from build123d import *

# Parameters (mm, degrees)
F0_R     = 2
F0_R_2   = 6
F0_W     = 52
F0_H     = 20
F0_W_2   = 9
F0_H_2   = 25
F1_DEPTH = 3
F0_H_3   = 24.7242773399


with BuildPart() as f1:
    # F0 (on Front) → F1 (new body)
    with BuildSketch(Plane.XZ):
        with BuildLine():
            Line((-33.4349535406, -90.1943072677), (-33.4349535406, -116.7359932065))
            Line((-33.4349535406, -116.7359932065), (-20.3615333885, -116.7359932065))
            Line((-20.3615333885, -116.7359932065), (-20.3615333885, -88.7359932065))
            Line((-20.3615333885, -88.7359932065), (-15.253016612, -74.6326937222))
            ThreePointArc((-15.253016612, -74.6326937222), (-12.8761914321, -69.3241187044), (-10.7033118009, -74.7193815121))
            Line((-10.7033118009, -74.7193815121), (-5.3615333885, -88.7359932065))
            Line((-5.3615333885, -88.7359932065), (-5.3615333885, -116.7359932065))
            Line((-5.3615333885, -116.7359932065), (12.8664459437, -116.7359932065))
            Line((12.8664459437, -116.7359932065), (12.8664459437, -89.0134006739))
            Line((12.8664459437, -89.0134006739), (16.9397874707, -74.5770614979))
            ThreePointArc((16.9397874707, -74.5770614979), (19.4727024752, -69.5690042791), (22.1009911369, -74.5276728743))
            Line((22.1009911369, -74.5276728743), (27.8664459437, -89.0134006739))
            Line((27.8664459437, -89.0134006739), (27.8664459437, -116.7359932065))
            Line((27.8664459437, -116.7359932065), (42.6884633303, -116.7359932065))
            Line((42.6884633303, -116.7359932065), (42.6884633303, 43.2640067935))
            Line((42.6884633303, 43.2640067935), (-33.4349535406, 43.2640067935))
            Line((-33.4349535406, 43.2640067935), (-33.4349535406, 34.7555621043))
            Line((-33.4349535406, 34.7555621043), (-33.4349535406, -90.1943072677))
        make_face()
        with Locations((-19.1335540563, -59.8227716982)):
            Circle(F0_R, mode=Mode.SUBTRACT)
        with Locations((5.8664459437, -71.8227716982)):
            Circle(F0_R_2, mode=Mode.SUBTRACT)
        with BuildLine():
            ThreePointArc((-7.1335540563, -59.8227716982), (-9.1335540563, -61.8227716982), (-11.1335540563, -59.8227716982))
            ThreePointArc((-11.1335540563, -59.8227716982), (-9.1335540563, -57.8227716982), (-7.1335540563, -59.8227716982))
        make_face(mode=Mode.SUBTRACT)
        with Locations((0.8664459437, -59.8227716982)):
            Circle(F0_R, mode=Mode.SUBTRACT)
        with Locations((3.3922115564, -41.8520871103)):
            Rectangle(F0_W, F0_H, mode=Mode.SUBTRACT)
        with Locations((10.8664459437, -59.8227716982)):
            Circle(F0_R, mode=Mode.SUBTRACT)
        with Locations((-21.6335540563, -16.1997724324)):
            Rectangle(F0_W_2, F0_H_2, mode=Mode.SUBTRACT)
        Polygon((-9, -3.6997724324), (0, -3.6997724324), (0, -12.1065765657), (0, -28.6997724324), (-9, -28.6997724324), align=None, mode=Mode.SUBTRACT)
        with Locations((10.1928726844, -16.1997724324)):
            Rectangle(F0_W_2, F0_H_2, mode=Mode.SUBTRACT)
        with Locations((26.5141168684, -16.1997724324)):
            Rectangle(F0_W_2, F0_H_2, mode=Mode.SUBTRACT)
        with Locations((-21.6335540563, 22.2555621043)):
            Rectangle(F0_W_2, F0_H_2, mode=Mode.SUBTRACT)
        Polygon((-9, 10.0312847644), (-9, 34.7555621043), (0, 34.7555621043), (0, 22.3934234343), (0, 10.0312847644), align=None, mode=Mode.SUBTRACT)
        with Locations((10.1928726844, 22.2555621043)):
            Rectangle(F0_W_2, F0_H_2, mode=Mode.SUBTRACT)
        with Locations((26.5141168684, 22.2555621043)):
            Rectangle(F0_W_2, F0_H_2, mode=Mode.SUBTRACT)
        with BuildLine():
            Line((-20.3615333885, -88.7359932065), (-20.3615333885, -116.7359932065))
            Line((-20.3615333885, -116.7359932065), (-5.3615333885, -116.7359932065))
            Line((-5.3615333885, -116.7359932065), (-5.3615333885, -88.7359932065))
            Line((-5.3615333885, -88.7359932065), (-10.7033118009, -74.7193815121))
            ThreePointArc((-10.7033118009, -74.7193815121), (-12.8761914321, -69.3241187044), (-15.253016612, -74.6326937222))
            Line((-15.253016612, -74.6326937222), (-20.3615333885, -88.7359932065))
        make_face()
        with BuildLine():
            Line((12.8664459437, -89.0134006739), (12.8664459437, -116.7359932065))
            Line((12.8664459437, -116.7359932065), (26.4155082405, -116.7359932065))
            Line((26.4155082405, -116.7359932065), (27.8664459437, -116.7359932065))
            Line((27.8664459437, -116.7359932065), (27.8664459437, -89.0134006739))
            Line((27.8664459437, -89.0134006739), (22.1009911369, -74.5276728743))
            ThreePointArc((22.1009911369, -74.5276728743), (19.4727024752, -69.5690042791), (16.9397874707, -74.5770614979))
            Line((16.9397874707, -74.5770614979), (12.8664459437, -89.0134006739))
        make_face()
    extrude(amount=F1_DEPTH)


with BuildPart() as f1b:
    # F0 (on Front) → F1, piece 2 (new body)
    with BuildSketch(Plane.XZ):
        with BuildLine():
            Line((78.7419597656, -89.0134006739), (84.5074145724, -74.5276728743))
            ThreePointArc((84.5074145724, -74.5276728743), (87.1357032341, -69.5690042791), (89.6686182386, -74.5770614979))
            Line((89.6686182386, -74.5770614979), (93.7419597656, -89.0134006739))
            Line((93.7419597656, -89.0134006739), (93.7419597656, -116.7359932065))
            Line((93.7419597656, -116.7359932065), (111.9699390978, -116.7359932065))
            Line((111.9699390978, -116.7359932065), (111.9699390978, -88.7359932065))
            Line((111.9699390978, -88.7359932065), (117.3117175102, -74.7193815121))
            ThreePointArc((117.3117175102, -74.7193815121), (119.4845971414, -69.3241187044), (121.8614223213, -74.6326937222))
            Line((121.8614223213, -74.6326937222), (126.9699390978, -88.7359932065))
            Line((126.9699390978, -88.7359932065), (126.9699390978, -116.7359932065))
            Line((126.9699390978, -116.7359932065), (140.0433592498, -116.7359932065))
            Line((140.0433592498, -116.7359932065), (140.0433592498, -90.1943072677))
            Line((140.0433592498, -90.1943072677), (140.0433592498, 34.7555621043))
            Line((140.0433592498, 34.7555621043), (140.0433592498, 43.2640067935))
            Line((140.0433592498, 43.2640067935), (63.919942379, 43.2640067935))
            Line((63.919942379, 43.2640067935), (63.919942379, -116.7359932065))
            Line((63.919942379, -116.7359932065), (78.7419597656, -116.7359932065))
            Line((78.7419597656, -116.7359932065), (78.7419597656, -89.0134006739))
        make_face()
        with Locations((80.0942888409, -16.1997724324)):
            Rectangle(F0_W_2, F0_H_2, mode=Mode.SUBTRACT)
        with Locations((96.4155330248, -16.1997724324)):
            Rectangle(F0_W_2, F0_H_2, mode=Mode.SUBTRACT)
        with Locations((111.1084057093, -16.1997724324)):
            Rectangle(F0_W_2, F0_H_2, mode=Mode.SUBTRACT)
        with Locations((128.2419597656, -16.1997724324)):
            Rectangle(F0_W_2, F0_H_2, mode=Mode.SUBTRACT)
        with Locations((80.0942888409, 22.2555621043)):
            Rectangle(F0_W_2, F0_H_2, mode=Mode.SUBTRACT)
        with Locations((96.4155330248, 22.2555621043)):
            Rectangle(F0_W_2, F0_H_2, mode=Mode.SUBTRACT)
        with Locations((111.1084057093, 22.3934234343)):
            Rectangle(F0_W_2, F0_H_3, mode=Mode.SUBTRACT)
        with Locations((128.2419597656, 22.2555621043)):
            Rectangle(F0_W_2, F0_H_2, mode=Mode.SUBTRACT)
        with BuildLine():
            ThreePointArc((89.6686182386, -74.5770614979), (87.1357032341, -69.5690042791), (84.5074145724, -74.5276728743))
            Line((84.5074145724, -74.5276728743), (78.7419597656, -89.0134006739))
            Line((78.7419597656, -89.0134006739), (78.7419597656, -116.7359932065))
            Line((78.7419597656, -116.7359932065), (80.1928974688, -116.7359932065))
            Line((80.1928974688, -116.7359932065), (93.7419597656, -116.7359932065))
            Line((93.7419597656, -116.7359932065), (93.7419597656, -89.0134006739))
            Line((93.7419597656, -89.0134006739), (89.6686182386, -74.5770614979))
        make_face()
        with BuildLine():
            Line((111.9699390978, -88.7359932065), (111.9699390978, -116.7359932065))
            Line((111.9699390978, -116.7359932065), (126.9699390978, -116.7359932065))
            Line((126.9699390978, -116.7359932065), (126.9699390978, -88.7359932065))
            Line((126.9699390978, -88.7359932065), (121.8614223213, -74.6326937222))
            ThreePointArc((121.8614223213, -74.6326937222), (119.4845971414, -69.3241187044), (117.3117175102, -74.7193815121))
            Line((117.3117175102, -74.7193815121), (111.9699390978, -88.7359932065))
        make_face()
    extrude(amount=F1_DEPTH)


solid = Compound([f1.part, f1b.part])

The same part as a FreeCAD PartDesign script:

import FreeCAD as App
import Part
import Sketcher


def add_polygon(sketch, points):
    """Adds a closed chain of lines whose ends are joined by coincident constraints."""
    first, n = sketch.GeometryCount, len(points)
    for a, b in zip(points, points[1:] + points[:1]):
        sketch.addGeometry(Part.LineSegment(App.Vector(*a, 0), App.Vector(*b, 0)), False)
    for i in range(n):
        sketch.addConstraint(Sketcher.Constraint("Coincident", first + i, 2, first + (i + 1) % n, 1))

doc = App.newDocument("Part")
body = doc.addObject("PartDesign::Body", "Body")

sketch1 = doc.addObject("Sketcher::SketchObject", "Sketch")
body.addObject(sketch1)
sketch1.AttachmentSupport = (doc.XZ_Plane, [""])
sketch1.MapMode = "FlatFace"
add_polygon(sketch1, [(-33.4, -116.7), (42.7, -116.7), (42.7, 43.3), (-33.4, 43.3)])
sketch1.addGeometry(Part.Circle(App.Vector(-19.1, -59.8, 0), App.Vector(0, 0, 1), 2), False)
sketch1.addGeometry(Part.Circle(App.Vector(-9.1, -59.8, 0), App.Vector(0, 0, 1), 2), False)
sketch1.addGeometry(Part.Circle(App.Vector(0.9, -59.8, 0), App.Vector(0, 0, 1), 2), False)
sketch1.addGeometry(Part.Circle(App.Vector(5.9, -71.8, 0), App.Vector(0, 0, 1), 6), False)
sketch1.addGeometry(Part.Circle(App.Vector(10.9, -59.8, 0), App.Vector(0, 0, 1), 2), False)
add_polygon(sketch1, [(29.4, -51.9), (-22.6, -51.9), (-22.6, -31.9), (29.4, -31.9)])
add_polygon(sketch1, [(-17.1, -28.7), (-26.1, -28.7), (-26.1, -3.7), (-17.1, -3.7)])
add_polygon(sketch1, [(-9, -28.7), (-9, -3.7), (0, -3.7), (0, -28.7)])
add_polygon(sketch1, [(-17.1, 9.8), (-26.1, 9.8), (-26.1, 34.8), (-17.1, 34.8)])
add_polygon(sketch1, [(0, 10), (-9, 10), (-9, 34.8), (0, 34.8)])
add_polygon(sketch1, [(14.7, -28.7), (5.7, -28.7), (5.7, -3.7), (14.7, -3.7)])
add_polygon(sketch1, [(31, -28.7), (22, -28.7), (22, -3.7), (31, -3.7)])
add_polygon(sketch1, [(14.7, 9.8), (5.7, 9.8), (5.7, 34.8), (14.7, 34.8)])
add_polygon(sketch1, [(31, 9.8), (22, 9.8), (22, 34.8), (31, 34.8)])
sketch1.addConstraint([
    Sketcher.Constraint("Horizontal", 0),
    Sketcher.Constraint("Vertical", 1),
    Sketcher.Constraint("Horizontal", 2),
    Sketcher.Constraint("Vertical", 3),
    Sketcher.Constraint("Horizontal", 9),
    Sketcher.Constraint("Vertical", 10),
    Sketcher.Constraint("Horizontal", 11),
    Sketcher.Constraint("Vertical", 12),
    Sketcher.Constraint("Horizontal", 13),
    Sketcher.Constraint("Vertical", 14),
    Sketcher.Constraint("Horizontal", 15),
    Sketcher.Constraint("Vertical", 16),
    Sketcher.Constraint("Vertical", 17),
    Sketcher.Constraint("Horizontal", 18),
    Sketcher.Constraint("Vertical", 19),
    Sketcher.Constraint("Horizontal", 20),
    Sketcher.Constraint("Horizontal", 21),
    Sketcher.Constraint("Vertical", 22),
    Sketcher.Constraint("Horizontal", 23),
    Sketcher.Constraint("Vertical", 24),
    Sketcher.Constraint("Horizontal", 25),
    Sketcher.Constraint("Vertical", 26),
    Sketcher.Constraint("Horizontal", 27),
    Sketcher.Constraint("Vertical", 28),
    Sketcher.Constraint("Horizontal", 29),
    Sketcher.Constraint("Vertical", 30),
    Sketcher.Constraint("Horizontal", 31),
    Sketcher.Constraint("Vertical", 32),
    Sketcher.Constraint("Horizontal", 33),
    Sketcher.Constraint("Vertical", 34),
    Sketcher.Constraint("Horizontal", 35),
    Sketcher.Constraint("Vertical", 36),
    Sketcher.Constraint("Horizontal", 37),
    Sketcher.Constraint("Vertical", 38),
    Sketcher.Constraint("Horizontal", 39),
    Sketcher.Constraint("Vertical", 40),
    Sketcher.Constraint("Horizontal", 41),
    Sketcher.Constraint("Vertical", 42),
    Sketcher.Constraint("Horizontal", 43),
    Sketcher.Constraint("Vertical", 44),
    Sketcher.Constraint("Equal", 4, 5),
    Sketcher.Constraint("Equal", 5, 6),
    Sketcher.Constraint("Equal", 6, 8),
    Sketcher.Constraint("PointOnObject", 18, 2, -2),
    Sketcher.Constraint("PointOnObject", 27, 2, -2),
    Sketcher.Constraint("Horizontal", 4, 3, 5, 3),
    Sketcher.Constraint("Horizontal", 5, 3, 6, 3),
    Sketcher.Constraint("Horizontal", 6, 3, 8, 3),
    Sketcher.Constraint("Horizontal", 15, 2, 17, 2),
    Sketcher.Constraint("Horizontal", 16, 2, 19, 2),
    Sketcher.Constraint("Horizontal", 23, 2, 26, 2),
    Sketcher.Constraint("Horizontal", 20, 2, 29, 2),
    Sketcher.Constraint("Horizontal", 18, 2, 30, 2),
    Sketcher.Constraint("Horizontal", 32, 2, 33, 2),
    Sketcher.Constraint("Horizontal", 31, 2, 34, 2),
    Sketcher.Constraint("Horizontal", 24, 2, 37, 2),
    Sketcher.Constraint("Horizontal", 27, 2, 38, 2),
    Sketcher.Constraint("Horizontal", 40, 2, 41, 2),
    Sketcher.Constraint("Horizontal", 39, 2, 42, 2),
    Sketcher.Constraint("Vertical", 14, 2, 21, 2),
    Sketcher.Constraint("Vertical", 16, 2, 23, 2),
    Sketcher.Constraint("Vertical", 20, 2, 25, 2),
    Sketcher.Constraint("Vertical", 30, 2, 37, 2),
    Sketcher.Constraint("Vertical", 32, 2, 39, 2),
    Sketcher.Constraint("Vertical", 34, 2, 41, 2),
    Sketcher.Constraint("Vertical", 36, 2, 43, 2),
    Sketcher.Constraint("Equal", 15, 18),
    Sketcher.Constraint("Equal", 27, 29),
    Sketcher.Constraint("Equal", 31, 33),
    Sketcher.Constraint("Equal", 19, 22),
    Sketcher.Constraint("Diameter", 4, 4.0),
    Sketcher.Constraint("Diameter", 7, 12.0),
    Sketcher.Constraint("DistanceX", 9, 2, 9, 1, 52.0),
    Sketcher.Constraint("DistanceX", 13, 2, 13, 1, 9.0),
    Sketcher.Constraint("DistanceY", 1, 1, 1, 2, 160.0),
    Sketcher.Constraint("DistanceY", 10, 1, 10, 2, 20.0),
    Sketcher.Constraint("DistanceY", 14, 1, 14, 2, 25.0),
    Sketcher.Constraint("DistanceX", 4, 3, 5, 3, 10.0),
    Sketcher.Constraint("DistanceX", 5, 3, 6, 3, 10.0),
    Sketcher.Constraint("DistanceX", 6, 3, 7, 3, 5.0),
    Sketcher.Constraint("DistanceY", 7, 3, 6, 3, 12.0),
    Sketcher.Constraint("DistanceX", 6, 3, 8, 3, 10.0),
    Sketcher.Constraint("DistanceX", 13, 2, 4, 3, 7.0),
    Sketcher.Constraint("DistanceY", 4, 3, 13, 2, 31.122999),
    Sketcher.Constraint("DistanceX", 2, 2, 4, 3, 14.301399),
    Sketcher.Constraint("DistanceX", 0, 1, 0, 2, 76.123417),
    Sketcher.Constraint("DistanceY", 26, 1, 26, 2, 24.724277),
    Sketcher.Constraint("DistanceY", 4, 3, -1, 1, 59.822772),
    Sketcher.Constraint("DistanceX", 9, 2, -1, 1, 22.607788),
    Sketcher.Constraint("DistanceY", 0, 2, 7, 3, 44.913222),
    Sketcher.Constraint("DistanceX", 29, 2, 11, 2, 23.699339),
    Sketcher.Constraint("DistanceX", 4, 3, -1, 1, 19.133554),
    Sketcher.Constraint("DistanceY", 9, 2, -1, 1, 51.852087),
    Sketcher.Constraint("DistanceY", -1, 1, 21, 2, 9.755562),
    Sketcher.Constraint("DistanceX", -1, 1, 33, 2, 22.014117),
])
pad1 = doc.addObject("PartDesign::Pad", "Pad")
body.addObject(pad1)
pad1.Profile = sketch1
pad1.Length = 3
body2 = doc.addObject("PartDesign::Body", "Body001")

sketch2 = doc.addObject("Sketcher::SketchObject", "Sketch001")
body2.addObject(sketch2)
sketch2.AttachmentSupport = (doc.getObject("XZ_Plane001"), [""])
sketch2.MapMode = "FlatFace"
add_polygon(sketch2, [(64, -117), (140, -117), (140, 43), (64, 43)])
add_polygon(sketch2, [(85, -29), (76, -29), (76, -4), (85, -4)])
add_polygon(sketch2, [(101, -29), (92, -29), (92, -4), (101, -4)])
add_polygon(sketch2, [(116, -29), (107, -29), (107, -4), (116, -4)])
add_polygon(sketch2, [(133, -29), (124, -29), (124, -4), (133, -4)])
add_polygon(sketch2, [(85, 10), (76, 10), (76, 35), (85, 35)])
add_polygon(sketch2, [(101, 10), (92, 10), (92, 35), (101, 35)])
add_polygon(sketch2, [(116, 10), (107, 10), (107, 35), (116, 35)])
add_polygon(sketch2, [(133, 10), (124, 10), (124, 35), (133, 35)])
sketch2.addConstraint([
    Sketcher.Constraint("Horizontal", 0),
    Sketcher.Constraint("Vertical", 1),
    Sketcher.Constraint("Horizontal", 2),
    Sketcher.Constraint("Vertical", 3),
    Sketcher.Constraint("Horizontal", 4),
    Sketcher.Constraint("Vertical", 5),
    Sketcher.Constraint("Horizontal", 6),
    Sketcher.Constraint("Vertical", 7),
    Sketcher.Constraint("Horizontal", 8),
    Sketcher.Constraint("Vertical", 9),
    Sketcher.Constraint("Horizontal", 10),
    Sketcher.Constraint("Vertical", 11),
    Sketcher.Constraint("Horizontal", 12),
    Sketcher.Constraint("Vertical", 13),
    Sketcher.Constraint("Horizontal", 14),
    Sketcher.Constraint("Vertical", 15),
    Sketcher.Constraint("Horizontal", 16),
    Sketcher.Constraint("Vertical", 17),
    Sketcher.Constraint("Horizontal", 18),
    Sketcher.Constraint("Vertical", 19),
    Sketcher.Constraint("Horizontal", 20),
    Sketcher.Constraint("Vertical", 21),
    Sketcher.Constraint("Horizontal", 22),
    Sketcher.Constraint("Vertical", 23),
    Sketcher.Constraint("Horizontal", 24),
    Sketcher.Constraint("Vertical", 25),
    Sketcher.Constraint("Horizontal", 26),
    Sketcher.Constraint("Vertical", 27),
    Sketcher.Constraint("Horizontal", 28),
    Sketcher.Constraint("Vertical", 29),
    Sketcher.Constraint("Horizontal", 30),
    Sketcher.Constraint("Vertical", 31),
    Sketcher.Constraint("Horizontal", 32),
    Sketcher.Constraint("Vertical", 33),
    Sketcher.Constraint("Horizontal", 34),
    Sketcher.Constraint("Vertical", 35),
    Sketcher.Constraint("Horizontal", 7, 2, 8, 2),
    Sketcher.Constraint("Horizontal", 6, 2, 9, 2),
    Sketcher.Constraint("Horizontal", 11, 2, 12, 2),
    Sketcher.Constraint("Horizontal", 10, 2, 13, 2),
    Sketcher.Constraint("Horizontal", 15, 2, 16, 2),
    Sketcher.Constraint("Horizontal", 14, 2, 17, 2),
    Sketcher.Constraint("Horizontal", 23, 2, 24, 2),
    Sketcher.Constraint("Horizontal", 22, 2, 25, 2),
    Sketcher.Constraint("Horizontal", 26, 2, 29, 2),
    Sketcher.Constraint("Horizontal", 27, 2, 32, 2),
    Sketcher.Constraint("Horizontal", 30, 2, 33, 2),
    Sketcher.Constraint("Vertical", 5, 2, 20, 2),
    Sketcher.Constraint("Vertical", 7, 2, 22, 2),
    Sketcher.Constraint("Vertical", 9, 2, 24, 2),
    Sketcher.Constraint("Vertical", 11, 2, 26, 2),
    Sketcher.Constraint("Vertical", 13, 2, 28, 2),
    Sketcher.Constraint("Vertical", 15, 2, 30, 2),
    Sketcher.Constraint("Vertical", 17, 2, 32, 2),
    Sketcher.Constraint("Vertical", 19, 2, 34, 2),
    Sketcher.Constraint("Equal", 6, 8),
    Sketcher.Constraint("Equal", 10, 12),
    Sketcher.Constraint("Equal", 14, 16),
    Sketcher.Constraint("Equal", 19, 21),
    Sketcher.Constraint("DistanceX", 4, 2, 4, 1, 9.0),
    Sketcher.Constraint("DistanceY", 1, 1, 1, 2, 160.0),
    Sketcher.Constraint("DistanceY", 5, 1, 5, 2, 25.0),
    Sketcher.Constraint("DistanceX", 33, 2, 1, 2, 16.301399),
    Sketcher.Constraint("DistanceX", 0, 1, 0, 2, 76.123417),
    Sketcher.Constraint("DistanceY", 29, 1, 29, 2, 24.724277),
    Sketcher.Constraint("DistanceX", -1, 1, 0, 2, 140.043359),
    Sketcher.Constraint("DistanceX", -1, 1, 4, 2, 75.594289),
    Sketcher.Constraint("DistanceY", 4, 2, 2, 2, 71.963779),
    Sketcher.Constraint("DistanceX", 2, 2, 8, 2, 27.995591),
    Sketcher.Constraint("DistanceY", 0, 2, -1, 1, 116.735993),
    Sketcher.Constraint("DistanceX", -1, 1, 12, 2, 106.608406),
    Sketcher.Constraint("DistanceY", -1, 1, 20, 2, 9.755562),
])
pad2 = doc.addObject("PartDesign::Pad", "Pad001")
body2.addObject(pad2)
pad2.Profile = sketch2
pad2.Length = 3

doc.recompute()
